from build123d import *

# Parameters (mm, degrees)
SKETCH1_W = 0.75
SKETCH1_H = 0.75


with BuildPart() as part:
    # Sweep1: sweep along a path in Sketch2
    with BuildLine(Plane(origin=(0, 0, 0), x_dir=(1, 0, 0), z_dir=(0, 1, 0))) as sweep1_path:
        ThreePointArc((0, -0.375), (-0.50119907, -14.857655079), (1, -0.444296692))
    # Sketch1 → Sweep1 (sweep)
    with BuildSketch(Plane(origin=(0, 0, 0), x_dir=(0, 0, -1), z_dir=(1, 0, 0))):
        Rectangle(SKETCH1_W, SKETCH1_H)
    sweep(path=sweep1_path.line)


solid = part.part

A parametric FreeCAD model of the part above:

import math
import FreeCAD as App
import Part
import Sketcher

V = App.Vector
Q = App.Units.Quantity


def add_polygon(sketch, points):
    """Adds a closed chain of lines whose ends are joined by coincident constraints."""
    first, n = sketch.GeometryCount, len(points)
    for a, b in zip(points, points[1:] + points[:1]):
        sketch.addGeometry(Part.LineSegment(App.Vector(*a, 0), App.Vector(*b, 0)), False)
    for i in range(n):
        sketch.addConstraint(Sketcher.Constraint("Coincident", first + i, 2, first + (i + 1) % n, 1))

doc = App.newDocument("Part")
body = doc.addObject("PartDesign::Body", "Body")

# Sketch on YZ plane
sketch1 = body.newObject("Sketcher::SketchObject", "Sketch")
sketch1.AttachmentSupport = (doc.getObject("YZ_Plane"), [""])
sketch1.MapMode = "FlatFace"
add_polygon(sketch1, [(0.4, 0.4), (-0.4, 0.4), (-0.4, -0.4), (0.4, -0.4)])  # lines 0-3
sketch1.addConstraint([
    Sketcher.Constraint("Horizontal", 0),
    Sketcher.Constraint("Vertical", 1),
    Sketcher.Constraint("Horizontal", 2),
    Sketcher.Constraint("Vertical", 3),
    Sketcher.Constraint("Symmetric", 0, 2, 2, 2, -1, 1),
    Sketcher.Constraint("Equal", 2, 1),
    Sketcher.Constraint("DistanceX", 0, 2, 0, 1, Q("0.75 mm")),
])

# Sketch on XZ plane
sketch2 = body.newObject("Sketcher::SketchObject", "Sketch001")
sketch2.AttachmentSupport = (doc.getObject("XZ_Plane"), [""])
sketch2.MapMode = "FlatFace"
sketch2.addGeometry(Part.ArcOfCircle(Part.Circle(V(0, 7.6, 0), V(0, 0, 1), 7.2), math.radians(-82), math.radians(270)), False)
sketch2.addConstraint([
    Sketcher.Constraint("PointOnObject", 0, 3, -2),
    Sketcher.Constraint("PointOnObject", 0, 2, -2),
    Sketcher.Constraint("Radius", 0, Q("7.25 mm")),
    Sketcher.Constraint("DistanceX", -1, 1, 0, 1, Q("1 mm")),
    Sketcher.Constraint("DistanceY", -1, 1, 0, 3, Q("7.625 mm")),
])
doc.recompute()

additivepipe = body.newObject("PartDesign::AdditivePipe", "AdditivePipe")
additivepipe.Profile = sketch1
additivepipe.Spine = (sketch2, ["Edge1"])

doc.recompute()
